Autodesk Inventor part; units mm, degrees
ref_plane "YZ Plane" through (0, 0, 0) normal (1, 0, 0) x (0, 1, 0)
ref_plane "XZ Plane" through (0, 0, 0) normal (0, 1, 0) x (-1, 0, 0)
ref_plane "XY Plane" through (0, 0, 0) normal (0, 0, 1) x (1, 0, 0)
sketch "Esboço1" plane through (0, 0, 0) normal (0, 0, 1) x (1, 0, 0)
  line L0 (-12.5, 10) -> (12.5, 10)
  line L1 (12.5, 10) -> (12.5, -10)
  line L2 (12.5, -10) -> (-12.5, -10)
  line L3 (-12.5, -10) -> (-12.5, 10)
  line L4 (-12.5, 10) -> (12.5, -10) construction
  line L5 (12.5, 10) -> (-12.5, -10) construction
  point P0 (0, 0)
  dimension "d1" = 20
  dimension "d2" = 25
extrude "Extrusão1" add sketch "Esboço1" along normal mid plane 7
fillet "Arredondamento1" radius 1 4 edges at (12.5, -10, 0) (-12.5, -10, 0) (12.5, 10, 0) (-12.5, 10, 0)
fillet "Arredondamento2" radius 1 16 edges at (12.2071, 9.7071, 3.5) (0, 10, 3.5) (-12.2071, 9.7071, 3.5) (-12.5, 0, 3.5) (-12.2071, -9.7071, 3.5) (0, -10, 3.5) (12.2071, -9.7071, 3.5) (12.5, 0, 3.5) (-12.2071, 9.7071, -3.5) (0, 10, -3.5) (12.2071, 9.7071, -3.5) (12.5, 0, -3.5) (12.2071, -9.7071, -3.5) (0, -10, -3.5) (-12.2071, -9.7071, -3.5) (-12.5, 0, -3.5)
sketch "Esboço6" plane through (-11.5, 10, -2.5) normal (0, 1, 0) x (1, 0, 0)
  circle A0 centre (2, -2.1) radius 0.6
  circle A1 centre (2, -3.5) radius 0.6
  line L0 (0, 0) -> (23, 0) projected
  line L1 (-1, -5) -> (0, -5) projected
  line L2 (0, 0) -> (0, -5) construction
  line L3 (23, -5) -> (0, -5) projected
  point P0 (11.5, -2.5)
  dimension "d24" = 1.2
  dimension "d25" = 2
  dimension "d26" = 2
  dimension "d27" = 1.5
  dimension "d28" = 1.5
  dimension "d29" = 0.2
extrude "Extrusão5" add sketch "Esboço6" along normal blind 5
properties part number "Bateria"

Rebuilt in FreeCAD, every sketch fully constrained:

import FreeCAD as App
import Part
import Sketcher
from FreeCAD import Vector


def edges_at(feature, points):
    """Names of the edges that pass closest to the given points."""
    edges = feature.Shape.Edges
    near = lambda p: min(range(len(edges)), key=lambda i: edges[i].distToShape(Part.Vertex(*p))[0])
    return sorted({f"Edge{near(p) + 1}" for p in points})

doc = App.newDocument("Part")
body = doc.addObject("PartDesign::Body", "Body")

# Sketch on XY plane
sketch1 = doc.addObject("Sketcher::SketchObject", "Sketch")
body.addObject(sketch1)
sketch1.AttachmentSupport = (doc.XY_Plane, [""])
sketch1.MapMode = "FlatFace"
sketch1.addGeometry([
    Part.LineSegment(Vector(12, 10, 0), Vector(-12, 10, 0)),
    Part.LineSegment(Vector(-12, 10, 0), Vector(-12, -10, 0)),
    Part.LineSegment(Vector(-12, -10, 0), Vector(12, -10, 0)),
    Part.LineSegment(Vector(12, -10, 0), Vector(12, 10, 0)),
], False)
sketch1.addConstraint([
    Sketcher.Constraint("Coincident", 0, 2, 1, 1),
    Sketcher.Constraint("Coincident", 1, 2, 2, 1),
    Sketcher.Constraint("Coincident", 2, 2, 3, 1),
    Sketcher.Constraint("Coincident", 3, 2, 0, 1),
    Sketcher.Constraint("Horizontal", 0),
    Sketcher.Constraint("Vertical", 1),
    Sketcher.Constraint("Horizontal", 2),
    Sketcher.Constraint("Vertical", 3),
    Sketcher.Constraint("Symmetric", 0, 2, 2, 2, -1, 1),
    Sketcher.Constraint("DistanceX", 0, 2, 0, 1, 25.0),
    Sketcher.Constraint("DistanceY", 1, 2, 1, 1, 20.0),
])
pad1 = doc.addObject("PartDesign::Pad", "Pad")
body.addObject(pad1)
pad1.Profile = sketch1
pad1.Length = 7
pad1.Midplane = True
doc.recompute()

fillet = doc.addObject("PartDesign::Fillet", "Fillet")
body.addObject(fillet)
fillet.Base = (pad1, edges_at(pad1, [
    (12.5, -10, 0),
    (-12.5, -10, 0),
    (12.5, 10, 0),
    (-12.5, 10, 0),
]))
fillet.Radius = 1
doc.recompute()

fillet2 = doc.addObject("PartDesign::Fillet", "Fillet001")
body.addObject(fillet2)
fillet2.Base = (fillet, edges_at(fillet, [
    (12.207, 9.707, 3.5),
    (0, 10, 3.5),
    (-12.207, 9.707, 3.5),
    (-12.5, 0, 3.5),
    (-12.207, -9.707, 3.5),
    (0, -10, 3.5),
    (12.207, -9.707, 3.5),
    (12.5, 0, 3.5),
    (-12.207, 9.707, -3.5),
    (0, 10, -3.5),
    (12.207, 9.707, -3.5),
    (12.5, 0, -3.5),
    (12.207, -9.707, -3.5),
    (0, -10, -3.5),
    (-12.207, -9.707, -3.5),
    (-12.5, 0, -3.5),
]))
fillet2.Radius = 1

# Sketch on XZ plane
sketch2 = doc.addObject("Sketcher::SketchObject", "Sketch001")
body.addObject(sketch2)
sketch2.AttachmentSupport = (doc.XZ_Plane, [""])
sketch2.MapMode = "FlatFace"
sketch2.AttachmentOffset = App.Placement(Vector(0, 0, -10), App.Rotation())
sketch2.addGeometry([
    Part.Circle(Vector(-9.5, -0.4, 0), Vector(0, 0, 1), 0.6),
    Part.Circle(Vector(-9.5, 1, 0), Vector(0, 0, 1), 0.6),
], False)
sketch2.addConstraint([
    Sketcher.Constraint("Equal", 0, 1),
    Sketcher.Constraint("Vertical", 0, 3, 1, 3),
    Sketcher.Constraint("Diameter", 0, 1.2),
    Sketcher.Constraint("DistanceY", -1, 1, 1, 3, 1.0),
    Sketcher.Constraint("DistanceX", 0, 3, -1, 1, 9.5),
    Sketcher.Constraint("DistanceY", 0, 3, -1, 1, 0.4),
])
pad2 = doc.addObject("PartDesign::Pad", "Pad001")
body.addObject(pad2)
pad2.Profile = sketch2
pad2.Length = 5
pad2.Reversed = True

doc.recompute()
